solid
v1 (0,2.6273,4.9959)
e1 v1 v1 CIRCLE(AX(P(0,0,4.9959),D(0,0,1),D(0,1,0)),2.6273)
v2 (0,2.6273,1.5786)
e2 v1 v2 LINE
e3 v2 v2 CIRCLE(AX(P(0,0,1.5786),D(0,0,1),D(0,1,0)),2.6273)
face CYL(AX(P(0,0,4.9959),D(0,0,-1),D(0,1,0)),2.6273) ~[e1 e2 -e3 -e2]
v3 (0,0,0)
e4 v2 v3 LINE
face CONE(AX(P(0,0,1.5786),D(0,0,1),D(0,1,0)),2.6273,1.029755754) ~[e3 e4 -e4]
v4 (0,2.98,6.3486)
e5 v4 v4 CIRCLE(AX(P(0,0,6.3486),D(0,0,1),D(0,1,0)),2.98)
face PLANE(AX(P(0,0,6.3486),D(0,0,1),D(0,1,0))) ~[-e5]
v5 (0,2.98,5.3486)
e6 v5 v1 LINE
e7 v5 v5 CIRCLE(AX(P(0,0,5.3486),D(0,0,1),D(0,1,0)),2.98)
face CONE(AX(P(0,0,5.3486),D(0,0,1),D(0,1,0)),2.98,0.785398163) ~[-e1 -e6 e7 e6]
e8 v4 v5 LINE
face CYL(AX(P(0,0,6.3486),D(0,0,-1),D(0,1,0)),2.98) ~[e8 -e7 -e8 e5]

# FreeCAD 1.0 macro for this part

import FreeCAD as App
import Part
import Sketcher

V = App.Vector
Q = App.Units.Quantity


def add_polygon(sketch, points):
    """Adds a closed chain of lines whose ends are joined by coincident constraints."""
    first, n = sketch.GeometryCount, len(points)
    for a, b in zip(points, points[1:] + points[:1]):
        sketch.addGeometry(Part.LineSegment(App.Vector(*a, 0), App.Vector(*b, 0)), False)
    for i in range(n):
        sketch.addConstraint(Sketcher.Constraint("Coincident", first + i, 2, first + (i + 1) % n, 1))

doc = App.newDocument("Part")
body = doc.addObject("PartDesign::Body", "Body")

# Sketch on YZ plane
sketch1 = doc.addObject("Sketcher::SketchObject", "Sketch")
body.addObject(sketch1)
sketch1.AttachmentSupport = (doc.YZ_Plane, [""])
sketch1.MapMode = "FlatFace"
add_polygon(sketch1, [(0, 6.35), (0, 0), (2.63, 1.58), (2.63, 5), (2.98, 5.35), (2.98, 6.35)])  # lines 0-5
sketch1.addConstraint([
    Sketcher.Constraint("Vertical", 0),
    Sketcher.Constraint("Vertical", 2),
    Sketcher.Constraint("Vertical", 4),
    Sketcher.Constraint("Horizontal", 5),
    Sketcher.Constraint("Coincident", 0, 2, -1, 1),
    Sketcher.Constraint("DistanceY", 4, 1, 4, 2, 1.0),
    Sketcher.Constraint("Angle", 3, Q("45 deg")),
    Sketcher.Constraint("Angle", 1, Q("30.9993 deg")),
    Sketcher.Constraint("DistanceY", 1, 2, 4, 2, 4.77),
    Sketcher.Constraint("DistanceX", 5, 2, 5, 1, 2.98),
    Sketcher.Constraint("Distance", 1, 3.065),
])
revolution = doc.addObject("PartDesign::Revolution", "Revolution")
body.addObject(revolution)
revolution.Profile = sketch1
revolution.ReferenceAxis = (sketch1, ["V_Axis"])
revolution.Angle = 360

doc.recompute()
